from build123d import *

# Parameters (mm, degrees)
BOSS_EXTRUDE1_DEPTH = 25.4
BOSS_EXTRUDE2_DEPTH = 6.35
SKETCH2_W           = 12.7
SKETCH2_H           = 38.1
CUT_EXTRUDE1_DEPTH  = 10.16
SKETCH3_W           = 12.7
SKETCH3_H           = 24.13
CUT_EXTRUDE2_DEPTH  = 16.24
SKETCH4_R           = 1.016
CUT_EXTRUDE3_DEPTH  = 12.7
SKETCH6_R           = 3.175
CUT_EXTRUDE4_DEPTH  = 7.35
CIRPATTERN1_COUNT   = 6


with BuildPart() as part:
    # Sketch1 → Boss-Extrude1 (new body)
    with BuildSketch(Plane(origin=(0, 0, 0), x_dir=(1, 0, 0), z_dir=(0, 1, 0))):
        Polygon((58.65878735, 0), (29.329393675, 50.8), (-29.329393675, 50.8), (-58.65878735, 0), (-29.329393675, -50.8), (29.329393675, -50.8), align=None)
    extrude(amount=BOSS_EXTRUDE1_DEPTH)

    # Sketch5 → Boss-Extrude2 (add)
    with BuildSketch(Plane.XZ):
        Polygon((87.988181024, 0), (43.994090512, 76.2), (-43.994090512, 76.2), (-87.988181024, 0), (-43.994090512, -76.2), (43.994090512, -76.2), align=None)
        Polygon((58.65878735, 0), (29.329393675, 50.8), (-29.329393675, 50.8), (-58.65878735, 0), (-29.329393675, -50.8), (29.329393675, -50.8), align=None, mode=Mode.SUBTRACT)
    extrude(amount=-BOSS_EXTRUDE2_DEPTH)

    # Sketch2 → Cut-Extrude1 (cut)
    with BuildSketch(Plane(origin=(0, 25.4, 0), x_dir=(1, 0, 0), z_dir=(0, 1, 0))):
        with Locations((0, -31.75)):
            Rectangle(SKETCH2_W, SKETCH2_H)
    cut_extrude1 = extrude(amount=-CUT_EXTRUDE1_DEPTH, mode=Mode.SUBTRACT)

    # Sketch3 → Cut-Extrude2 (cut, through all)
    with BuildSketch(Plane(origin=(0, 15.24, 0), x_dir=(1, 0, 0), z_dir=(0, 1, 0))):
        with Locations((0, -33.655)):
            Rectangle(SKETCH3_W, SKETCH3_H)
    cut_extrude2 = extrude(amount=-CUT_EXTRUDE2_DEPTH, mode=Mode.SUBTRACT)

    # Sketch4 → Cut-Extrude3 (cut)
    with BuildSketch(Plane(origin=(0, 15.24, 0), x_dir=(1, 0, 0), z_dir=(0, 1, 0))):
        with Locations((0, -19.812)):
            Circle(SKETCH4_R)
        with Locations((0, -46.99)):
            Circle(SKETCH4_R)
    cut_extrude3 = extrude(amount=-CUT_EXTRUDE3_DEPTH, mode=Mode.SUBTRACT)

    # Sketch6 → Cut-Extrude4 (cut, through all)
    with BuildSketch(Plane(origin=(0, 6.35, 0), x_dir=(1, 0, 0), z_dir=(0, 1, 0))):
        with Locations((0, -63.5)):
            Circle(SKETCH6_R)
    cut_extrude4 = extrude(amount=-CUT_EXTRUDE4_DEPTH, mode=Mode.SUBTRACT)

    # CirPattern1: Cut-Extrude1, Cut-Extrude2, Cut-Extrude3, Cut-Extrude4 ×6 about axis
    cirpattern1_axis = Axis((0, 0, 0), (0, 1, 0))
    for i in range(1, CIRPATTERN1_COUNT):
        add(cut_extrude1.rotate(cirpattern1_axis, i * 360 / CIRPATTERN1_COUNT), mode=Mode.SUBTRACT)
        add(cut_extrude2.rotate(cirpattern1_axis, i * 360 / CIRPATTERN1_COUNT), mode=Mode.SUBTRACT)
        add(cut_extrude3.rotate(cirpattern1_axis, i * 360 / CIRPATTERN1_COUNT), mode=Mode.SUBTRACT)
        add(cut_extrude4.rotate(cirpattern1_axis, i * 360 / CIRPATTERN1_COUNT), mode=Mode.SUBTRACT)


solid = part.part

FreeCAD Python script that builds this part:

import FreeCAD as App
import Part
import Sketcher
Q = App.Units.Quantity


def add_polygon(sketch, points):
    """Adds a closed chain of lines whose ends are joined by coincident constraints."""
    first, n = sketch.GeometryCount, len(points)
    for a, b in zip(points, points[1:] + points[:1]):
        sketch.addGeometry(Part.LineSegment(App.Vector(*a, 0), App.Vector(*b, 0)), False)
    for i in range(n):
        sketch.addConstraint(Sketcher.Constraint("Coincident", first + i, 2, first + (i + 1) % n, 1))

doc = App.newDocument("Part")
body = doc.addObject("PartDesign::Body", "Body")

sketch1 = doc.addObject("Sketcher::SketchObject", "Sketch")
body.addObject(sketch1)
sketch1.AttachmentSupport = (doc.XZ_Plane, [""])
sketch1.MapMode = "FlatFace"
add_polygon(sketch1, [(59, 0), (29, -51), (-29, -51), (-59, 0), (-29, 51), (29, 51)])
sketch1.addConstraint([
    Sketcher.Constraint("Horizontal", 1),
    Sketcher.Constraint("Horizontal", 4),
    Sketcher.Constraint("Symmetric", 0, 2, 3, 2, -1, 1),
    Sketcher.Constraint("Symmetric", 2, 2, 5, 2, -1, 1),
    Sketcher.Constraint("PointOnObject", 2, 2, -1),
    Sketcher.Constraint("Parallel", 2, 5),
    Sketcher.Constraint("Vertical", 1, 2, 3, 2),
    Sketcher.Constraint("DistanceY", 0, 2, -1, 1, Q("2 in")),
    Sketcher.Constraint("Angle", 0, Q("-120 deg")),
    Sketcher.Constraint("DistanceX", 1, 2, 1, 1, Q("58.658787 mm")),
])
pad1 = doc.addObject("PartDesign::Pad", "Pad")
body.addObject(pad1)
pad1.Profile = sketch1
pad1.Length = Q("1 in")
pad1.Reversed = True

sketch2 = doc.addObject("Sketcher::SketchObject", "Sketch001")
body.addObject(sketch2)
sketch2.AttachmentSupport = (doc.XZ_Plane, [""])
sketch2.MapMode = "FlatFace"
add_polygon(sketch2, [(88, 0), (44, 76), (-44, 76), (-88, 0), (-44, -76), (44, -76)])
add_polygon(sketch2, [(29, 51), (59, 0), (29, -51), (-29, -51), (-59, 0), (-29, 51)])
sketch2.addConstraint([
    Sketcher.Constraint("Horizontal", 1),
    Sketcher.Constraint("Horizontal", 4),
    Sketcher.Constraint("Horizontal", 8),
    Sketcher.Constraint("Horizontal", 11),
    Sketcher.Constraint("Symmetric", 0, 2, 3, 2, -1, 1),
    Sketcher.Constraint("Symmetric", 2, 2, 5, 2, -1, 1),
    Sketcher.Constraint("Symmetric", 6, 2, 9, 2, -1, 1),
    Sketcher.Constraint("Symmetric", 7, 2, 10, 2, -1, 1),
    Sketcher.Constraint("PointOnObject", 2, 2, -1),
    Sketcher.Constraint("PointOnObject", 6, 2, -1),
    Sketcher.Constraint("Parallel", 2, 5),
    Sketcher.Constraint("Parallel", 3, 6),
    Sketcher.Constraint("Parallel", 5, 7),
    Sketcher.Constraint("Parallel", 6, 9),
    Sketcher.Constraint("Vertical", 1, 2, 3, 2),
    Sketcher.Constraint("DistanceY", -1, 1, 0, 2, Q("3 in")),
    Sketcher.Constraint("DistanceY", 7, 2, -1, 1, Q("2 in")),
    Sketcher.Constraint("Angle", 0, Q("120 deg")),
    Sketcher.Constraint("DistanceX", 1, 2, 1, 1, Q("87.988181 mm")),
    Sketcher.Constraint("DistanceX", 8, 2, 8, 1, Q("58.658787 mm")),
])
pad2 = doc.addObject("PartDesign::Pad", "Pad001")
body.addObject(pad2)
pad2.Profile = sketch2
pad2.Length = Q("0.25 in")
pad2.Reversed = True

sketch3 = doc.addObject("Sketcher::SketchObject", "Sketch002")
body.addObject(sketch3)
sketch3.AttachmentSupport = (doc.XZ_Plane, [""])
sketch3.MapMode = "FlatFace"
sketch3.AttachmentOffset = App.Placement(App.Vector(0, 0, -1 * 25.4), App.Rotation())
add_polygon(sketch3, [(-6, 13), (-6, 51), (6, 51), (6, 13)])
sketch3.addConstraint([
    Sketcher.Constraint("Vertical", 0),
    Sketcher.Constraint("Horizontal", 1),
    Sketcher.Constraint("Vertical", 2),
    Sketcher.Constraint("Horizontal", 3),
    Sketcher.Constraint("DistanceX", 1, 1, 1, 2, Q("0.5 in")),
    Sketcher.Constraint("DistanceY", 0, 1, 0, 2, Q("1.5 in")),
    Sketcher.Constraint("DistanceY", -1, 1, 0, 2, Q("2 in")),
    Sketcher.Constraint("DistanceX", 0, 2, -1, 1, Q("0.25 in")),
])
pocket1 = doc.addObject("PartDesign::Pocket", "Pocket")
body.addObject(pocket1)
pocket1.Profile = sketch3
pocket1.Length = Q("0.4 in")
pocket1.Reversed = True

sketch4 = doc.addObject("Sketcher::SketchObject", "Sketch003")
body.addObject(sketch4)
sketch4.AttachmentSupport = (doc.XZ_Plane, [""])
sketch4.MapMode = "FlatFace"
sketch4.AttachmentOffset = App.Placement(App.Vector(0, 0, -0.6 * 25.4), App.Rotation())
add_polygon(sketch4, [(-6, 22), (-6, 46), (6, 46), (6, 22)])
sketch4.addConstraint([
    Sketcher.Constraint("Vertical", 0),
    Sketcher.Constraint("Horizontal", 1),
    Sketcher.Constraint("Vertical", 2),
    Sketcher.Constraint("Horizontal", 3),
    Sketcher.Constraint("DistanceX", 1, 1, 1, 2, Q("0.5 in")),
    Sketcher.Constraint("DistanceY", 0, 1, 0, 2, Q("0.95 in")),
    Sketcher.Constraint("DistanceY", -1, 1, 0, 2, Q("1.8 in")),
    Sketcher.Constraint("DistanceX", 0, 2, -1, 1, Q("0.25 in")),
])
pocket2 = doc.addObject("PartDesign::Pocket", "Pocket001")
body.addObject(pocket2)
pocket2.Profile = sketch4
pocket2.Type = "ThroughAll"
pocket2.Reversed = True

sketch5 = doc.addObject("Sketcher::SketchObject", "Sketch004")
body.addObject(sketch5)
sketch5.AttachmentSupport = (doc.XZ_Plane, [""])
sketch5.MapMode = "FlatFace"
sketch5.AttachmentOffset = App.Placement(App.Vector(0, 0, -0.6 * 25.4), App.Rotation())
sketch5.addGeometry([
    Part.Circle(App.Vector(0, 19.8, 0), App.Vector(0, 0, 1), 1),
    Part.Circle(App.Vector(0, 47, 0), App.Vector(0, 0, 1), 1),
], False)
sketch5.addConstraint([
    Sketcher.Constraint("Equal", 0, 1),
    Sketcher.Constraint("PointOnObject", 0, 3, -2),
    Sketcher.Constraint("PointOnObject", 1, 3, -2),
    Sketcher.Constraint("Diameter", 0, Q("0.08 in")),
    Sketcher.Constraint("DistanceY", -1, 1, 0, 3, Q("0.78 in")),
    Sketcher.Constraint("DistanceY", -1, 1, 1, 3, Q("1.85 in")),
])
pocket3 = doc.addObject("PartDesign::Pocket", "Pocket002")
body.addObject(pocket3)
pocket3.Profile = sketch5
pocket3.Length = Q("0.5 in")
pocket3.Reversed = True

sketch6 = doc.addObject("Sketcher::SketchObject", "Sketch005")
body.addObject(sketch6)
sketch6.AttachmentSupport = (doc.XZ_Plane, [""])
sketch6.MapMode = "FlatFace"
sketch6.AttachmentOffset = App.Placement(App.Vector(0, 0, -0.25 * 25.4), App.Rotation())
sketch6.addGeometry(Part.Circle(App.Vector(0, 63.5, 0), App.Vector(0, 0, 1), 3.2), False)
sketch6.addConstraint([
    Sketcher.Constraint("PointOnObject", 0, 3, -2),
    Sketcher.Constraint("Diameter", 0, Q("0.25 in")),
    Sketcher.Constraint("DistanceY", -1, 1, 0, 3, Q("2.5 in")),
])
pocket4 = doc.addObject("PartDesign::Pocket", "Pocket003")
body.addObject(pocket4)
pocket4.Profile = sketch6
pocket4.Type = "ThroughAll"
pocket4.Reversed = True
doc.recompute()

polarpattern = doc.addObject("PartDesign::PolarPattern", "PolarPattern")
body.addObject(polarpattern)
polarpattern.Originals = [pocket1, pocket2, pocket3, pocket4]
polarpattern.Axis = (doc.Y_Axis, [""])
polarpattern.Angle = 360
polarpattern.Occurrences = 6
body.Tip = polarpattern

doc.recompute()
